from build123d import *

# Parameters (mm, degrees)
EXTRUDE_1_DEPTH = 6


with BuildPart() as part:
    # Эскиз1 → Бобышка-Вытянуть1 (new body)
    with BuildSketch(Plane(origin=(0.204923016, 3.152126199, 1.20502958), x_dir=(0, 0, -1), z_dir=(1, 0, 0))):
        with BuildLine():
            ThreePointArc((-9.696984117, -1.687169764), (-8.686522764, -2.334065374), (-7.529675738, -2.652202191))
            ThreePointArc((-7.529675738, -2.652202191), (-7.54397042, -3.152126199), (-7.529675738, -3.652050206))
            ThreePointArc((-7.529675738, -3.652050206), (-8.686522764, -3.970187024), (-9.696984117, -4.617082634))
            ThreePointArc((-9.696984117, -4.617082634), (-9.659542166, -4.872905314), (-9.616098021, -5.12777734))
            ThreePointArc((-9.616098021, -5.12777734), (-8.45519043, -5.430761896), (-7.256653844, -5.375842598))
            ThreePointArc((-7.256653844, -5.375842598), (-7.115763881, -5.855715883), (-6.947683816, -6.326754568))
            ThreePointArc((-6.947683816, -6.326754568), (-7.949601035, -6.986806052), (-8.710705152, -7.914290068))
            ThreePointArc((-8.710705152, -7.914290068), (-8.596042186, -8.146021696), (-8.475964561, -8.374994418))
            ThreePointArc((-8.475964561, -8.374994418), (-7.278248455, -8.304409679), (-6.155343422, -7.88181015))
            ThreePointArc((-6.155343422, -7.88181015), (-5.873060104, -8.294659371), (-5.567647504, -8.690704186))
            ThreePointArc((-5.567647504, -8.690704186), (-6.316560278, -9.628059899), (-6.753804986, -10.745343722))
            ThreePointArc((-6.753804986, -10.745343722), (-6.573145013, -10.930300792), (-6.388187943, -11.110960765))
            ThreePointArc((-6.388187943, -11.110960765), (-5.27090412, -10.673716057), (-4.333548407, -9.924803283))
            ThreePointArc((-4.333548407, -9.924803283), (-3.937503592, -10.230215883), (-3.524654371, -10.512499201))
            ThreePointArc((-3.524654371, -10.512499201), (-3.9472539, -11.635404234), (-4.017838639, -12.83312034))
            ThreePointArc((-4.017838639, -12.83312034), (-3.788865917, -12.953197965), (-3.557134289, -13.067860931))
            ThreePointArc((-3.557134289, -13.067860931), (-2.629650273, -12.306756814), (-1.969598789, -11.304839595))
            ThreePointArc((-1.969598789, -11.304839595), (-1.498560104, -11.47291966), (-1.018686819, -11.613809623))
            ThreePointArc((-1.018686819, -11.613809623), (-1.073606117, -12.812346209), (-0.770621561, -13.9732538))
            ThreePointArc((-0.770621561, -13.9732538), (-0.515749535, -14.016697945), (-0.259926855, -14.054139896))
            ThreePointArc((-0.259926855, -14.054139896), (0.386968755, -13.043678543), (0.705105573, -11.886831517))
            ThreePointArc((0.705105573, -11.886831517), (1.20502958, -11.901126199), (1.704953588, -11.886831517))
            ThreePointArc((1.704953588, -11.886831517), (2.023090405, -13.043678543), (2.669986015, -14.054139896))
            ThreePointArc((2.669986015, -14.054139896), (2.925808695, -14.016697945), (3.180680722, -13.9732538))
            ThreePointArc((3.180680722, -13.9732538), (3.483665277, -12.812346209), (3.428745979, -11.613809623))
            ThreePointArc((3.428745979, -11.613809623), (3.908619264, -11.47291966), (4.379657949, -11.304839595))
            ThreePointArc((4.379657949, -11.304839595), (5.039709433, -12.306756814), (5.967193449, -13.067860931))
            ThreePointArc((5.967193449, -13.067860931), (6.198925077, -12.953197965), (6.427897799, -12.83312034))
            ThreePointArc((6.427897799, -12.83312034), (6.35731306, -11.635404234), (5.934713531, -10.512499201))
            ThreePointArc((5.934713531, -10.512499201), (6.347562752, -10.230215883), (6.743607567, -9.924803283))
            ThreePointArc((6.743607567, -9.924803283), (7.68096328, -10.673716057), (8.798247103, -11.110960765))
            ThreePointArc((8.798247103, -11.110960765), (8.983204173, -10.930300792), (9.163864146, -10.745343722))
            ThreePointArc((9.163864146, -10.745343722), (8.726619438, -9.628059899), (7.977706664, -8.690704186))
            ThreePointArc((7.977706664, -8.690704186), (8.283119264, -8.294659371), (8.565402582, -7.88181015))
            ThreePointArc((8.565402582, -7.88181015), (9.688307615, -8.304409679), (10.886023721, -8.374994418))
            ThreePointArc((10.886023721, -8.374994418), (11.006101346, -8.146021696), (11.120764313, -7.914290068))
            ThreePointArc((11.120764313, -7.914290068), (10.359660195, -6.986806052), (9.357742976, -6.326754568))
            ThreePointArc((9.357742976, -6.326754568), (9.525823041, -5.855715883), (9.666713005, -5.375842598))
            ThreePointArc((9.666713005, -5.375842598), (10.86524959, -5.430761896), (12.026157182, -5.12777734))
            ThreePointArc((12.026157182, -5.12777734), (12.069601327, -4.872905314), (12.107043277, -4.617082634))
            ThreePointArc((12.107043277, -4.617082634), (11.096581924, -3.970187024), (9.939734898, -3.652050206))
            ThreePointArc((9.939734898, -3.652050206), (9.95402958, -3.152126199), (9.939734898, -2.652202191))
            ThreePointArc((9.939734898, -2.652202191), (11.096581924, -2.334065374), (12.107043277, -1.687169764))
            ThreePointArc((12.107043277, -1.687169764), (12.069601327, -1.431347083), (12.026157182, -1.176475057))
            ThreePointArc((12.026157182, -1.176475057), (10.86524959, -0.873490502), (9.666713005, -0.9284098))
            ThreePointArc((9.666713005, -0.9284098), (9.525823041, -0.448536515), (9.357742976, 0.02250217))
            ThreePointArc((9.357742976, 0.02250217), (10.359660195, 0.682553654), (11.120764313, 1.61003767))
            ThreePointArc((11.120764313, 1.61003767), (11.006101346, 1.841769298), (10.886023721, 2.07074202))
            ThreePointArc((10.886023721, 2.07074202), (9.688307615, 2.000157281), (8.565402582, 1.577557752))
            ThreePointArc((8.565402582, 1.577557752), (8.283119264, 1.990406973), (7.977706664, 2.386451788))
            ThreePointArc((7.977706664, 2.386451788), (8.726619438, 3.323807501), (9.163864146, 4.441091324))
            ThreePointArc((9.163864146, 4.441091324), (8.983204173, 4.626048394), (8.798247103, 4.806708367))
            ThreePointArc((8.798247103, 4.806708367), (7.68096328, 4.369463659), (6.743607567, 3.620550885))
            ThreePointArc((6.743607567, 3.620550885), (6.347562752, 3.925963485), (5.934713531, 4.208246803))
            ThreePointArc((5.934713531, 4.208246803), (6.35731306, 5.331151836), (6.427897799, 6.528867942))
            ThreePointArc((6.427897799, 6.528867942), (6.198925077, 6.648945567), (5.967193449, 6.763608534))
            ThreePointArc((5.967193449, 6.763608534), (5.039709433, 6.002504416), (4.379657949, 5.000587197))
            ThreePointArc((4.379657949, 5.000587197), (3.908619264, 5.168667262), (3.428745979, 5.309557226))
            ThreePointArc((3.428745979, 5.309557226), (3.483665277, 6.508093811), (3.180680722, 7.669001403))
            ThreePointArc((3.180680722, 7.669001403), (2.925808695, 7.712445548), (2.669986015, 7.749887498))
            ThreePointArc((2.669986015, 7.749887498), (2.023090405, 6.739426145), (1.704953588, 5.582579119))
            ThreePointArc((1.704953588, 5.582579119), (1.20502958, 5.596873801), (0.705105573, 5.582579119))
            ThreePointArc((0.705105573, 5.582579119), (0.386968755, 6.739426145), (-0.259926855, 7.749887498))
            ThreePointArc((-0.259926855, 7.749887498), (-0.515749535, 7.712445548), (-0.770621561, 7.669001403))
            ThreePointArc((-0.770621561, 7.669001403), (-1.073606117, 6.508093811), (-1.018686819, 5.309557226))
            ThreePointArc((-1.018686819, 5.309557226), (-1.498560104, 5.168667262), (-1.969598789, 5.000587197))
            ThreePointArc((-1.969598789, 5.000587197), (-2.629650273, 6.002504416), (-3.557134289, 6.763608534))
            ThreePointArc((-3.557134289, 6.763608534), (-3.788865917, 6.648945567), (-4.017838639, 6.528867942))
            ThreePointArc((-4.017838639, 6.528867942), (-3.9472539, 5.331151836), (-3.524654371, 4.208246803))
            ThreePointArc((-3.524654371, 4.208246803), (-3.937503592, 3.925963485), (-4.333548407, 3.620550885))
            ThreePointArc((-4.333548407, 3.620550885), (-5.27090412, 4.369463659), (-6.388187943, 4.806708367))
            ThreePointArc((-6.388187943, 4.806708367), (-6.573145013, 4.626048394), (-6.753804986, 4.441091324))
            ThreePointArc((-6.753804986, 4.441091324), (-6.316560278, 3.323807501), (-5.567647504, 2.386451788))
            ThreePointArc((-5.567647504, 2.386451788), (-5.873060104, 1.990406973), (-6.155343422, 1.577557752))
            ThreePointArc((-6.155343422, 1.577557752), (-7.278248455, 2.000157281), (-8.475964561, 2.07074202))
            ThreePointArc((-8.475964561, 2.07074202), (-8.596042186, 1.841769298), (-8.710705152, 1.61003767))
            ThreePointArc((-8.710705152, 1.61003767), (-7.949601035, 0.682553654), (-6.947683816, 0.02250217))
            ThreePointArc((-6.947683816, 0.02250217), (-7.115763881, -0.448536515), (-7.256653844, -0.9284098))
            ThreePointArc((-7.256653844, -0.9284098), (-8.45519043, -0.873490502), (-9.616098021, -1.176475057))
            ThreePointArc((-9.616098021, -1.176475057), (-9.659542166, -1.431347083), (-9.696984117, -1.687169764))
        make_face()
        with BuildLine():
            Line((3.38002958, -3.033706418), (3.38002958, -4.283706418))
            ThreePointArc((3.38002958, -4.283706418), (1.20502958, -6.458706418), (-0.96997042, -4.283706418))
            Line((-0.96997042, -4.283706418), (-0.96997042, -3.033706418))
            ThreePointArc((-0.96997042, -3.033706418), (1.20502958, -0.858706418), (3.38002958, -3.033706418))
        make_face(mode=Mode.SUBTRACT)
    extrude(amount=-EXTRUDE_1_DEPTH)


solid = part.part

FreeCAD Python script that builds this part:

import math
import FreeCAD as App
import Part
import Sketcher
Q = App.Units.Quantity

doc = App.newDocument("Part")
params = doc.addObject("Spreadsheet::Sheet", "Params")
for row, (alias, value) in enumerate([
    ("sketch1_radius", "4 mm"),
    ("sketch1_radius2", "11.000002 mm"),
    ("sketch1_width", "1.25 mm"),
    ("pad1_length", "6 mm"),
], start=1):
    params.set(f"A{row}", alias)
    params.set(f"B{row}", "=" + value)
    params.setAlias(f"B{row}", alias)

body = doc.addObject("PartDesign::Body", "Body")

# Sketch on YZ plane
sketch1 = body.newObject("Sketcher::SketchObject", "Sketch")
sketch1.AttachmentSupport = (doc.getObject("YZ_Plane"), [""])
sketch1.MapMode = "FlatFace"
sketch1.AttachmentOffset = App.Placement(App.Vector(0, 0, 0.204923), App.Rotation())
sketch1.addGeometry([
    Part.ArcOfCircle(Part.Circle(App.Vector(4.5, 8.3, 0), App.Vector(0, 0, 1), 4), math.radians(139), math.radians(173)),  # 0
    Part.ArcOfCircle(Part.Circle(App.Vector(0, 0, 0), App.Vector(0, 0, 1), 8.7), math.radians(86.72), math.radians(93.28)),  # 1
    Part.ArcOfCircle(Part.Circle(App.Vector(-4.5, 8.3, 0), App.Vector(0, 0, 1), 4), math.radians(7), math.radians(41)),  # 2
    Part.ArcOfCircle(Part.Circle(App.Vector(0, 0, 0), App.Vector(0, 0, 1), 11), math.radians(97.65), math.radians(100.35)),  # 3
    Part.ArcOfCircle(Part.Circle(App.Vector(1.7, 9.2, 0), App.Vector(0, 0, 1), 4), math.radians(157), math.radians(191)),  # 4
    Part.ArcOfCircle(Part.Circle(App.Vector(0, 0, 0), App.Vector(0, 0, 1), 8.7), math.radians(104.72), math.radians(111.28)),  # 5
    Part.ArcOfCircle(Part.Circle(App.Vector(-6.8, 6.5, 0), App.Vector(0, 0, 1), 4), math.radians(25), math.radians(59)),  # 6
    Part.ArcOfCircle(Part.Circle(App.Vector(0, 0, 0), App.Vector(0, 0, 1), 11), math.radians(115.65), math.radians(118.35)),  # 7
    Part.ArcOfCircle(Part.Circle(App.Vector(-1.2, 9.3, 0), App.Vector(0, 0, 1), 4), math.radians(175), math.radians(209)),  # 8
    Part.ArcOfCircle(Part.Circle(App.Vector(0, 0, 0), App.Vector(0, 0, 1), 8.7), math.radians(122.72), math.radians(129.28)),  # 9
    Part.ArcOfCircle(Part.Circle(App.Vector(-8.5, 4.1, 0), App.Vector(0, 0, 1), 4), math.radians(43), math.radians(77)),  # 10
    Part.ArcOfCircle(Part.Circle(App.Vector(0, 0, 0), App.Vector(0, 0, 1), 11), math.radians(133.65), math.radians(136.35)),  # 11
    Part.ArcOfCircle(Part.Circle(App.Vector(-4.1, 8.5, 0), App.Vector(0, 0, 1), 4), math.radians(-167), math.radians(-133)),  # 12
    Part.ArcOfCircle(Part.Circle(App.Vector(0, 0, 0), App.Vector(0, 0, 1), 8.7), math.radians(140.72), math.radians(147.28)),  # 13
    Part.ArcOfCircle(Part.Circle(App.Vector(-9.3, 1.2, 0), App.Vector(0, 0, 1), 4), math.radians(61), math.radians(95)),  # 14
    Part.ArcOfCircle(Part.Circle(App.Vector(0, 0, 0), App.Vector(0, 0, 1), 11), math.radians(151.65), math.radians(154.35)),  # 15
    Part.ArcOfCircle(Part.Circle(App.Vector(-6.5, 6.8, 0), App.Vector(0, 0, 1), 4), math.radians(-149), math.radians(-115)),  # 16
    Part.ArcOfCircle(Part.Circle(App.Vector(0, 0, 0), App.Vector(0, 0, 1), 8.7), math.radians(158.72), math.radians(165.28)),  # 17
    Part.ArcOfCircle(Part.Circle(App.Vector(-9.2, -1.7, 0), App.Vector(0, 0, 1), 4), math.radians(79), math.radians(113)),  # 18
    Part.ArcOfCircle(Part.Circle(App.Vector(0, 0, 0), App.Vector(0, 0, 1), 11), math.radians(169.65), math.radians(172.35)),  # 19
    Part.ArcOfCircle(Part.Circle(App.Vector(-8.3, 4.5, 0), App.Vector(0, 0, 1), 4), math.radians(-131), math.radians(-97)),  # 20
    Part.ArcOfCircle(Part.Circle(App.Vector(0, 0, 0), App.Vector(0, 0, 1), 8.7), math.radians(176.72), math.radians(183.28)),  # 21
    Part.ArcOfCircle(Part.Circle(App.Vector(-8.3, -4.5, 0), App.Vector(0, 0, 1), 4), math.radians(97), math.radians(131)),  # 22
    Part.ArcOfCircle(Part.Circle(App.Vector(0, 0, 0), App.Vector(0, 0, 1), 11), math.radians(-172.35), math.radians(-169.65)),  # 23
    Part.ArcOfCircle(Part.Circle(App.Vector(-9.2, 1.7, 0), App.Vector(0, 0, 1), 4), math.radians(-113), math.radians(-79)),  # 24
    Part.ArcOfCircle(Part.Circle(App.Vector(0, 0, 0), App.Vector(0, 0, 1), 8.7), math.radians(-165.28), math.radians(-158.72)),  # 25
    Part.ArcOfCircle(Part.Circle(App.Vector(-6.5, -6.8, 0), App.Vector(0, 0, 1), 4), math.radians(115), math.radians(149)),  # 26
    Part.ArcOfCircle(Part.Circle(App.Vector(0, 0, 0), App.Vector(0, 0, 1), 11), math.radians(-154.35), math.radians(-151.65)),  # 27
    Part.ArcOfCircle(Part.Circle(App.Vector(-9.3, -1.2, 0), App.Vector(0, 0, 1), 4), math.radians(-95), math.radians(-61)),  # 28
    Part.ArcOfCircle(Part.Circle(App.Vector(0, 0, 0), App.Vector(0, 0, 1), 8.7), math.radians(-147.28), math.radians(-140.72)),  # 29
    Part.ArcOfCircle(Part.Circle(App.Vector(-4.1, -8.5, 0), App.Vector(0, 0, 1), 4), math.radians(133), math.radians(167)),  # 30
    Part.ArcOfCircle(Part.Circle(App.Vector(0, 0, 0), App.Vector(0, 0, 1), 11), math.radians(-136.35), math.radians(-133.65)),  # 31
    Part.ArcOfCircle(Part.Circle(App.Vector(-8.5, -4.1, 0), App.Vector(0, 0, 1), 4), math.radians(-77), math.radians(-43)),  # 32
    Part.ArcOfCircle(Part.Circle(App.Vector(0, 0, 0), App.Vector(0, 0, 1), 8.7), math.radians(-129.28), math.radians(-122.72)),  # 33
    Part.ArcOfCircle(Part.Circle(App.Vector(-1.2, -9.3, 0), App.Vector(0, 0, 1), 4), math.radians(151), math.radians(185)),  # 34
    Part.ArcOfCircle(Part.Circle(App.Vector(0, 0, 0), App.Vector(0, 0, 1), 11), math.radians(-118.35), math.radians(-115.65)),  # 35
    Part.ArcOfCircle(Part.Circle(App.Vector(-6.8, -6.5, 0), App.Vector(0, 0, 1), 4), math.radians(-59), math.radians(-25)),  # 36
    Part.ArcOfCircle(Part.Circle(App.Vector(0, 0, 0), App.Vector(0, 0, 1), 8.7), math.radians(-111.28), math.radians(-104.72)),  # 37
    Part.ArcOfCircle(Part.Circle(App.Vector(1.7, -9.2, 0), App.Vector(0, 0, 1), 4), math.radians(169), math.radians(203)),  # 38
    Part.ArcOfCircle(Part.Circle(App.Vector(0, 0, 0), App.Vector(0, 0, 1), 11), math.radians(-100.35), math.radians(-97.65)),  # 39
    Part.ArcOfCircle(Part.Circle(App.Vector(-4.5, -8.3, 0), App.Vector(0, 0, 1), 4), math.radians(-41), math.radians(-7)),  # 40
    Part.ArcOfCircle(Part.Circle(App.Vector(0, 0, 0), App.Vector(0, 0, 1), 8.7), math.radians(-93.28), math.radians(-86.72)),  # 41
    Part.ArcOfCircle(Part.Circle(App.Vector(4.5, -8.3, 0), App.Vector(0, 0, 1), 4), math.radians(-173), math.radians(-139)),  # 42
    Part.ArcOfCircle(Part.Circle(App.Vector(0, 0, 0), App.Vector(0, 0, 1), 11), math.radians(-82.35), math.radians(-79.65)),  # 43
    Part.ArcOfCircle(Part.Circle(App.Vector(-1.7, -9.2, 0), App.Vector(0, 0, 1), 4), math.radians(-23), math.radians(11)),  # 44
    Part.ArcOfCircle(Part.Circle(App.Vector(0, 0, 0), App.Vector(0, 0, 1), 8.7), math.radians(-75.28), math.radians(-68.72)),  # 45
    Part.ArcOfCircle(Part.Circle(App.Vector(6.8, -6.5, 0), App.Vector(0, 0, 1), 4), math.radians(-155), math.radians(-121)),  # 46
    Part.ArcOfCircle(Part.Circle(App.Vector(0, 0, 0), App.Vector(0, 0, 1), 11), math.radians(-64.35), math.radians(-61.65)),  # 47
    Part.ArcOfCircle(Part.Circle(App.Vector(1.2, -9.3, 0), App.Vector(0, 0, 1), 4), math.radians(-5), math.radians(29)),  # 48
    Part.ArcOfCircle(Part.Circle(App.Vector(0, 0, 0), App.Vector(0, 0, 1), 8.7), math.radians(-57.28), math.radians(-50.72)),  # 49
    Part.ArcOfCircle(Part.Circle(App.Vector(8.5, -4.1, 0), App.Vector(0, 0, 1), 4), math.radians(-137), math.radians(-103)),  # 50
    Part.ArcOfCircle(Part.Circle(App.Vector(0, 0, 0), App.Vector(0, 0, 1), 11), math.radians(-46.35), math.radians(-43.65)),  # 51
    Part.ArcOfCircle(Part.Circle(App.Vector(4.1, -8.5, 0), App.Vector(0, 0, 1), 4), math.radians(13), math.radians(47)),  # 52
    Part.ArcOfCircle(Part.Circle(App.Vector(0, 0, 0), App.Vector(0, 0, 1), 8.7), math.radians(-39.28), math.radians(-32.72)),  # 53
    Part.ArcOfCircle(Part.Circle(App.Vector(9.3, -1.2, 0), App.Vector(0, 0, 1), 4), math.radians(-119), math.radians(-85)),  # 54
    Part.ArcOfCircle(Part.Circle(App.Vector(0, 0, 0), App.Vector(0, 0, 1), 11), math.radians(-28.35), math.radians(-25.65)),  # 55
    Part.ArcOfCircle(Part.Circle(App.Vector(6.5, -6.8, 0), App.Vector(0, 0, 1), 4), math.radians(31), math.radians(65)),  # 56
    Part.ArcOfCircle(Part.Circle(App.Vector(0, 0, 0), App.Vector(0, 0, 1), 8.7), math.radians(-21.28), math.radians(-14.72)),  # 57
    Part.ArcOfCircle(Part.Circle(App.Vector(9.2, 1.7, 0), App.Vector(0, 0, 1), 4), math.radians(-101), math.radians(-67)),  # 58
    Part.ArcOfCircle(Part.Circle(App.Vector(0, 0, 0), App.Vector(0, 0, 1), 11), math.radians(-10.35), math.radians(-7.65)),  # 59
    Part.ArcOfCircle(Part.Circle(App.Vector(8.3, -4.5, 0), App.Vector(0, 0, 1), 4), math.radians(49), math.radians(83)),  # 60
    Part.ArcOfCircle(Part.Circle(App.Vector(0, 0, 0), App.Vector(0, 0, 1), 8.7), math.radians(-3.28), math.radians(3.28)),  # 61
    Part.ArcOfCircle(Part.Circle(App.Vector(8.3, 4.5, 0), App.Vector(0, 0, 1), 4), math.radians(-83), math.radians(-49)),  # 62
    Part.ArcOfCircle(Part.Circle(App.Vector(0, 0, 0), App.Vector(0, 0, 1), 11), math.radians(7.65), math.radians(10.35)),  # 63
    Part.ArcOfCircle(Part.Circle(App.Vector(9.2, -1.7, 0), App.Vector(0, 0, 1), 4), math.radians(67), math.radians(101)),  # 64
    Part.ArcOfCircle(Part.Circle(App.Vector(0, 0, 0), App.Vector(0, 0, 1), 8.7), math.radians(14.72), math.radians(21.28)),  # 65
    Part.ArcOfCircle(Part.Circle(App.Vector(6.5, 6.8, 0), App.Vector(0, 0, 1), 4), math.radians(-65), math.radians(-31)),  # 66
    Part.ArcOfCircle(Part.Circle(App.Vector(0, 0, 0), App.Vector(0, 0, 1), 11), math.radians(25.65), math.radians(28.35)),  # 67
    Part.ArcOfCircle(Part.Circle(App.Vector(9.3, 1.2, 0), App.Vector(0, 0, 1), 4), math.radians(85), math.radians(119)),  # 68
    Part.ArcOfCircle(Part.Circle(App.Vector(0, 0, 0), App.Vector(0, 0, 1), 8.7), math.radians(32.72), math.radians(39.28)),  # 69
    Part.ArcOfCircle(Part.Circle(App.Vector(4.1, 8.5, 0), App.Vector(0, 0, 1), 4), math.radians(-47), math.radians(-13)),  # 70
    Part.ArcOfCircle(Part.Circle(App.Vector(0, 0, 0), App.Vector(0, 0, 1), 11), math.radians(43.65), math.radians(46.35)),  # 71
    Part.ArcOfCircle(Part.Circle(App.Vector(8.5, 4.1, 0), App.Vector(0, 0, 1), 4), math.radians(103), math.radians(137)),  # 72
    Part.ArcOfCircle(Part.Circle(App.Vector(0, 0, 0), App.Vector(0, 0, 1), 8.7), math.radians(50.72), math.radians(57.28)),  # 73
    Part.ArcOfCircle(Part.Circle(App.Vector(1.2, 9.3, 0), App.Vector(0, 0, 1), 4), math.radians(-29), math.radians(5)),  # 74
    Part.ArcOfCircle(Part.Circle(App.Vector(0, 0, 0), App.Vector(0, 0, 1), 11), math.radians(61.65), math.radians(64.35)),  # 75
    Part.ArcOfCircle(Part.Circle(App.Vector(6.8, 6.5, 0), App.Vector(0, 0, 1), 4), math.radians(121), math.radians(155)),  # 76
    Part.ArcOfCircle(Part.Circle(App.Vector(0, 0, 0), App.Vector(0, 0, 1), 8.7), math.radians(68.72), math.radians(75.28)),  # 77
    Part.ArcOfCircle(Part.Circle(App.Vector(-1.7, 9.2, 0), App.Vector(0, 0, 1), 4), math.radians(-11), math.radians(23)),  # 78
    Part.ArcOfCircle(Part.Circle(App.Vector(0, 0, 0), App.Vector(0, 0, 1), 11), math.radians(79.65), math.radians(82.35)),  # 79
    Part.ArcOfCircle(Part.Circle(App.Vector(0.1, 0, 0), App.Vector(0, 0, 1), 2.2), math.radians(-90), math.radians(90)),  # 80
    Part.LineSegment(App.Vector(0.1, -2.2, 0), App.Vector(-1.1, -2.2, 0)),  # 81
    Part.ArcOfCircle(Part.Circle(App.Vector(-1.1, 0, 0), App.Vector(0, 0, 1), 2.2), math.radians(90), math.radians(270)),  # 82
    Part.LineSegment(App.Vector(-1.1, 2.2, 0), App.Vector(0.1, 2.2, 0)),  # 83
], False)
sketch1.addConstraint([
    Sketcher.Constraint("Coincident", 0, 2, 1, 1),
    Sketcher.Constraint("Coincident", 1, 2, 2, 1),
    Sketcher.Constraint("Coincident", 2, 2, 3, 1),
    Sketcher.Constraint("Coincident", 3, 2, 4, 1),
    Sketcher.Constraint("Coincident", 4, 2, 5, 1),
    Sketcher.Constraint("Coincident", 5, 2, 6, 1),
    Sketcher.Constraint("Coincident", 6, 2, 7, 1),
    Sketcher.Constraint("Coincident", 7, 2, 8, 1),
    Sketcher.Constraint("Coincident", 8, 2, 9, 1),
    Sketcher.Constraint("Coincident", 9, 2, 10, 1),
    Sketcher.Constraint("Coincident", 10, 2, 11, 1),
    Sketcher.Constraint("Coincident", 11, 2, 12, 1),
    Sketcher.Constraint("Coincident", 12, 2, 13, 1),
    Sketcher.Constraint("Coincident", 13, 2, 14, 1),
    Sketcher.Constraint("Coincident", 14, 2, 15, 1),
    Sketcher.Constraint("Coincident", 15, 2, 16, 1),
    Sketcher.Constraint("Coincident", 16, 2, 17, 1),
    Sketcher.Constraint("Coincident", 17, 2, 18, 1),
    Sketcher.Constraint("Coincident", 18, 2, 19, 1),
    Sketcher.Constraint("Coincident", 19, 2, 20, 1),
    Sketcher.Constraint("Coincident", 20, 2, 21, 1),
    Sketcher.Constraint("Coincident", 21, 2, 22, 1),
    Sketcher.Constraint("Coincident", 22, 2, 23, 1),
    Sketcher.Constraint("Coincident", 23, 2, 24, 1),
    Sketcher.Constraint("Coincident", 24, 2, 25, 1),
    Sketcher.Constraint("Coincident", 25, 2, 26, 1),
    Sketcher.Constraint("Coincident", 26, 2, 27, 1),
    Sketcher.Constraint("Coincident", 27, 2, 28, 1),
    Sketcher.Constraint("Coincident", 28, 2, 29, 1),
    Sketcher.Constraint("Coincident", 29, 2, 30, 1),
    Sketcher.Constraint("Coincident", 30, 2, 31, 1),
    Sketcher.Constraint("Coincident", 31, 2, 32, 1),
    Sketcher.Constraint("Coincident", 32, 2, 33, 1),
    Sketcher.Constraint("Coincident", 33, 2, 34, 1),
    Sketcher.Constraint("Coincident", 34, 2, 35, 1),
    Sketcher.Constraint("Coincident", 35, 2, 36, 1),
    Sketcher.Constraint("Coincident", 36, 2, 37, 1),
    Sketcher.Constraint("Coincident", 37, 2, 38, 1),
    Sketcher.Constraint("Coincident", 38, 2, 39, 1),
    Sketcher.Constraint("Coincident", 39, 2, 40, 1),
    Sketcher.Constraint("Coincident", 40, 2, 41, 1),
    Sketcher.Constraint("Coincident", 41, 2, 42, 1),
    Sketcher.Constraint("Coincident", 42, 2, 43, 1),
    Sketcher.Constraint("Coincident", 43, 2, 44, 1),
    Sketcher.Constraint("Coincident", 44, 2, 45, 1),
    Sketcher.Constraint("Coincident", 45, 2, 46, 1),
    Sketcher.Constraint("Coincident", 46, 2, 47, 1),
    Sketcher.Constraint("Coincident", 47, 2, 48, 1),
    Sketcher.Constraint("Coincident", 48, 2, 49, 1),
    Sketcher.Constraint("Coincident", 49, 2, 50, 1),
    Sketcher.Constraint("Coincident", 50, 2, 51, 1),
    Sketcher.Constraint("Coincident", 51, 2, 52, 1),
    Sketcher.Constraint("Coincident", 52, 2, 53, 1),
    Sketcher.Constraint("Coincident", 53, 2, 54, 1),
    Sketcher.Constraint("Coincident", 54, 2, 55, 1),
    Sketcher.Constraint("Coincident", 55, 2, 56, 1),
    Sketcher.Constraint("Coincident", 56, 2, 57, 1),
    Sketcher.Constraint("Coincident", 57, 2, 58, 1),
    Sketcher.Constraint("Coincident", 58, 2, 59, 1),
    Sketcher.Constraint("Coincident", 59, 2, 60, 1),
    Sketcher.Constraint("Coincident", 60, 2, 61, 1),
    Sketcher.Constraint("Coincident", 61, 2, 62, 1),
    Sketcher.Constraint("Coincident", 62, 2, 63, 1),
    Sketcher.Constraint("Coincident", 63, 2, 64, 1),
    Sketcher.Constraint("Coincident", 64, 2, 65, 1),
    Sketcher.Constraint("Coincident", 65, 2, 66, 1),
    Sketcher.Constraint("Coincident", 66, 2, 67, 1),
    Sketcher.Constraint("Coincident", 67, 2, 68, 1),
    Sketcher.Constraint("Coincident", 68, 2, 69, 1),
    Sketcher.Constraint("Coincident", 69, 2, 70, 1),
    Sketcher.Constraint("Coincident", 70, 2, 71, 1),
    Sketcher.Constraint("Coincident", 71, 2, 72, 1),
    Sketcher.Constraint("Coincident", 72, 2, 73, 1),
    Sketcher.Constraint("Coincident", 73, 2, 74, 1),
    Sketcher.Constraint("Coincident", 74, 2, 75, 1),
    Sketcher.Constraint("Coincident", 75, 2, 76, 1),
    Sketcher.Constraint("Coincident", 76, 2, 77, 1),
    Sketcher.Constraint("Coincident", 77, 2, 78, 1),
    Sketcher.Constraint("Coincident", 78, 2, 79, 1),
    Sketcher.Constraint("Coincident", 79, 2, 0, 1),
    Sketcher.Constraint("Tangent", 80, 1, 81, 1),
    Sketcher.Constraint("Tangent", 81, 2, 82, 2),
    Sketcher.Constraint("Tangent", 82, 1, 83, 1),
    Sketcher.Constraint("Tangent", 83, 2, 80, 2),
    Sketcher.Constraint("Horizontal", 81),
    Sketcher.Constraint("Horizontal", 83),
    Sketcher.Constraint("Coincident", 1, 3, -1, 1),
    Sketcher.Constraint("Coincident", 3, 3, -1, 1),
    Sketcher.Constraint("Coincident", 5, 3, -1, 1),
    Sketcher.Constraint("Coincident", 7, 3, -1, 1),
    Sketcher.Constraint("Coincident", 9, 3, -1, 1),
    Sketcher.Constraint("Coincident", 11, 3, -1, 1),
    Sketcher.Constraint("Coincident", 13, 3, -1, 1),
    Sketcher.Constraint("Coincident", 15, 3, -1, 1),
    Sketcher.Constraint("Coincident", 17, 3, -1, 1),
    Sketcher.Constraint("Coincident", 19, 3, -1, 1),
    Sketcher.Constraint("Coincident", 21, 3, -1, 1),
    Sketcher.Constraint("Coincident", 23, 3, -1, 1),
    Sketcher.Constraint("Coincident", 25, 3, -1, 1),
    Sketcher.Constraint("Coincident", 27, 3, -1, 1),
    Sketcher.Constraint("Coincident", 29, 3, -1, 1),
    Sketcher.Constraint("Coincident", 31, 3, -1, 1),
    Sketcher.Constraint("Coincident", 33, 3, -1, 1),
    Sketcher.Constraint("Coincident", 35, 3, -1, 1),
    Sketcher.Constraint("Coincident", 37, 3, -1, 1),
    Sketcher.Constraint("Coincident", 39, 3, -1, 1),
    Sketcher.Constraint("Coincident", 41, 3, -1, 1),
    Sketcher.Constraint("Coincident", 43, 3, -1, 1),
    Sketcher.Constraint("Coincident", 45, 3, -1, 1),
    Sketcher.Constraint("Coincident", 47, 3, -1, 1),
    Sketcher.Constraint("Coincident", 49, 3, -1, 1),
    Sketcher.Constraint("Coincident", 51, 3, -1, 1),
    Sketcher.Constraint("Coincident", 53, 3, -1, 1),
    Sketcher.Constraint("Coincident", 55, 3, -1, 1),
    Sketcher.Constraint("Coincident", 57, 3, -1, 1),
    Sketcher.Constraint("Coincident", 59, 3, -1, 1),
    Sketcher.Constraint("Coincident", 61, 3, -1, 1),
    Sketcher.Constraint("Coincident", 63, 3, -1, 1),
    Sketcher.Constraint("Coincident", 65, 3, -1, 1),
    Sketcher.Constraint("Coincident", 67, 3, -1, 1),
    Sketcher.Constraint("Coincident", 69, 3, -1, 1),
    Sketcher.Constraint("Coincident", 71, 3, -1, 1),
    Sketcher.Constraint("Coincident", 73, 3, -1, 1),
    Sketcher.Constraint("Coincident", 75, 3, -1, 1),
    Sketcher.Constraint("Coincident", 77, 3, -1, 1),
    Sketcher.Constraint("Coincident", 79, 3, -1, 1),
    Sketcher.Constraint("Equal", 0, 2),
    Sketcher.Constraint("Equal", 2, 4),
    Sketcher.Constraint("Equal", 1, 5),
    Sketcher.Constraint("Equal", 4, 6),
    Sketcher.Constraint("Equal", 6, 8),
    Sketcher.Constraint("Equal", 5, 9),
    Sketcher.Constraint("Equal", 8, 10),
    Sketcher.Constraint("Equal", 7, 11),
    Sketcher.Constraint("Equal", 10, 12),
    Sketcher.Constraint("Equal", 9, 13),
    Sketcher.Constraint("Equal", 12, 14),
    Sketcher.Constraint("Equal", 11, 15),
    Sketcher.Constraint("Equal", 14, 16),
    Sketcher.Constraint("Equal", 13, 17),
    Sketcher.Constraint("Equal", 16, 18),
    Sketcher.Constraint("Equal", 11, 19),
    Sketcher.Constraint("Equal", 18, 20),
    Sketcher.Constraint("Equal", 17, 21),
    Sketcher.Constraint("Equal", 20, 22),
    Sketcher.Constraint("Equal", 19, 23),
    Sketcher.Constraint("Equal", 22, 24),
    Sketcher.Constraint("Equal", 21, 25),
    Sketcher.Constraint("Equal", 24, 26),
    Sketcher.Constraint("Equal", 15, 27),
    Sketcher.Constraint("Equal", 26, 28),
    Sketcher.Constraint("Equal", 25, 29),
    Sketcher.Constraint("Equal", 28, 30),
    Sketcher.Constraint("Equal", 27, 31),
    Sketcher.Constraint("Equal", 30, 32),
    Sketcher.Constraint("Equal", 29, 33),
    Sketcher.Constraint("Equal", 32, 34),
    Sketcher.Constraint("Equal", 31, 35),
    Sketcher.Constraint("Equal", 34, 36),
    Sketcher.Constraint("Equal", 33, 37),
    Sketcher.Constraint("Equal", 36, 38),
    Sketcher.Constraint("Equal", 35, 39),
    Sketcher.Constraint("Equal", 38, 40),
    Sketcher.Constraint("Equal", 37, 41),
    Sketcher.Constraint("Equal", 40, 42),
    Sketcher.Constraint("Equal", 39, 43),
    Sketcher.Constraint("Equal", 42, 44),
    Sketcher.Constraint("Equal", 41, 45),
    Sketcher.Constraint("Equal", 44, 46),
    Sketcher.Constraint("Equal", 43, 47),
    Sketcher.Constraint("Equal", 46, 48),
    Sketcher.Constraint("Equal", 45, 49),
    Sketcher.Constraint("Equal", 48, 50),
    Sketcher.Constraint("Equal", 47, 51),
    Sketcher.Constraint("Equal", 50, 52),
    Sketcher.Constraint("Equal", 49, 53),
    Sketcher.Constraint("Equal", 52, 54),
    Sketcher.Constraint("Equal", 51, 55),
    Sketcher.Constraint("Equal", 54, 56),
    Sketcher.Constraint("Equal", 53, 57),
    Sketcher.Constraint("Equal", 56, 58),
    Sketcher.Constraint("Equal", 55, 59),
    Sketcher.Constraint("Equal", 58, 60),
    Sketcher.Constraint("Equal", 57, 61),
    Sketcher.Constraint("Equal", 60, 62),
    Sketcher.Constraint("Equal", 59, 63),
    Sketcher.Constraint("Equal", 62, 64),
    Sketcher.Constraint("Equal", 61, 65),
    Sketcher.Constraint("Equal", 64, 66),
    Sketcher.Constraint("Equal", 63, 67),
    Sketcher.Constraint("Equal", 66, 68),
    Sketcher.Constraint("Equal", 65, 69),
    Sketcher.Constraint("Equal", 68, 70),
    Sketcher.Constraint("Equal", 67, 71),
    Sketcher.Constraint("Equal", 70, 72),
    Sketcher.Constraint("Equal", 69, 73),
    Sketcher.Constraint("Equal", 72, 74),
    Sketcher.Constraint("Equal", 71, 75),
    Sketcher.Constraint("Equal", 74, 76),
    Sketcher.Constraint("Equal", 73, 77),
    Sketcher.Constraint("Equal", 76, 78),
    Sketcher.Constraint("Equal", 71, 79),
    Sketcher.Constraint("Symmetric", 0, 3, 40, 3, -1, 1),
    Sketcher.Constraint("Symmetric", 2, 3, 42, 3, -1, 1),
    Sketcher.Constraint("Symmetric", 4, 3, 44, 3, -1, 1),
    Sketcher.Constraint("Symmetric", 6, 3, 46, 3, -1, 1),
    Sketcher.Constraint("Symmetric", 8, 3, 48, 3, -1, 1),
    Sketcher.Constraint("Symmetric", 10, 3, 50, 3, -1, 1),
    Sketcher.Constraint("Symmetric", 12, 3, 52, 3, -1, 1),
    Sketcher.Constraint("Symmetric", 14, 3, 54, 3, -1, 1),
    Sketcher.Constraint("Symmetric", 16, 3, 56, 3, -1, 1),
    Sketcher.Constraint("Symmetric", 18, 3, 58, 3, -1, 1),
    Sketcher.Constraint("Symmetric", 20, 3, 60, 3, -1, 1),
    Sketcher.Constraint("Symmetric", 22, 3, 62, 3, -1, 1),
    Sketcher.Constraint("Symmetric", 24, 3, 64, 3, -1, 1),
    Sketcher.Constraint("Symmetric", 26, 3, 66, 3, -1, 1),
    Sketcher.Constraint("Symmetric", 28, 3, 68, 3, -1, 1),
    Sketcher.Constraint("Symmetric", 30, 3, 70, 3, -1, 1),
    Sketcher.Constraint("Symmetric", 32, 3, 72, 3, -1, 1),
    Sketcher.Constraint("Symmetric", 34, 3, 74, 3, -1, 1),
    Sketcher.Constraint("Symmetric", 36, 3, 76, 3, -1, 1),
    Sketcher.Constraint("Symmetric", 38, 3, 78, 3, -1, 1),
    Sketcher.Constraint("Symmetric", 0, 3, 2, 3, -2),
    Sketcher.Constraint("Symmetric", 38, 3, 44, 3, -2),
    Sketcher.Constraint("Symmetric", 36, 3, 46, 3, -2),
    Sketcher.Constraint("Symmetric", 34, 3, 48, 3, -2),
    Sketcher.Constraint("Symmetric", 32, 3, 50, 3, -2),
    Sketcher.Constraint("Symmetric", 30, 3, 52, 3, -2),
    Sketcher.Constraint("Symmetric", 28, 3, 54, 3, -2),
    Sketcher.Constraint("Symmetric", 26, 3, 56, 3, -2),
    Sketcher.Constraint("Symmetric", 24, 3, 58, 3, -2),
    Sketcher.Constraint("Symmetric", 22, 3, 60, 3, -2),
    Sketcher.Constraint("PointOnObject", 80, 3, -1),
    Sketcher.Constraint("Horizontal", 3, 2, 78, 2),
    Sketcher.Constraint("Radius", 0, Q("4 mm")),
    Sketcher.Constraint("Radius", 3, Q("11.000002 mm")),
    Sketcher.Constraint("Radius", 1, Q("8.749 mm")),
    Sketcher.Constraint("Radius", 80, Q("2.175 mm")),
    Sketcher.Constraint("DistanceX", 81, 2, 81, 1, Q("1.25 mm")),
    Sketcher.Constraint("DistanceX", -1, 1, 0, 3, Q("4.47219 mm")),
    Sketcher.Constraint("DistanceX", -1, 1, 4, 3, Q("1.699438 mm")),
    Sketcher.Constraint("DistanceX", 6, 3, -1, 1, Q("6.807172 mm")),
    Sketcher.Constraint("DistanceY", -1, 1, 6, 3, Q("6.478011 mm")),
    Sketcher.Constraint("DistanceX", 10, 3, -1, 1, Q("8.475821 mm")),
    Sketcher.Constraint("DistanceY", -1, 1, 12, 3, Q("8.475821 mm")),
    Sketcher.Constraint("DistanceX", 16, 3, -1, 1, Q("6.478011 mm")),
    Sketcher.Constraint("DistanceY", -1, 1, 16, 3, Q("6.807172 mm")),
    Sketcher.Constraint("DistanceY", 18, 3, -1, 1, Q("1.699438 mm")),
    Sketcher.Constraint("DistanceY", -1, 1, 20, 3, Q("4.47219 mm")),
    Sketcher.Constraint("DistanceX", -1, 1, 80, 3, Q("0.11842 mm")),
    Sketcher.Constraint("DistanceX", 3, 2, -1, 1, Q("1.975651 mm")),
    Sketcher.Constraint("DistanceX", 7, 2, -1, 1, Q("5.222868 mm")),
    Sketcher.Constraint("DistanceY", -1, 1, 14, 2, Q("5.222868 mm")),
    Sketcher.Constraint("DistanceY", -1, 1, 18, 2, Q("1.975651 mm")),
    Sketcher.Constraint("DistanceY", -1, 1, 0, 3, Q("8.264487 mm")),
    Sketcher.Constraint("DistanceX", 8, 3, -1, 1, Q("1.239666 mm")),
    Sketcher.Constraint("DistanceY", -1, 1, 10, 3, Q("4.057423 mm")),
    Sketcher.Constraint("DistanceX", 12, 3, -1, 1, Q("4.057423 mm")),
    Sketcher.Constraint("DistanceX", 14, 3, -1, 1, Q("9.314797 mm")),
    Sketcher.Constraint("DistanceX", 20, 3, -1, 1, Q("8.264487 mm")),
])
sketch1.setExpression("Constraints[234]", "Params.sketch1_radius")
sketch1.setExpression("Constraints[235]", "Params.sketch1_radius2")
sketch1.setExpression("Constraints[238]", "Params.sketch1_width")
pad1 = body.newObject("PartDesign::Pad", "Pad")
pad1.Profile = sketch1
pad1.setExpression("Length", "Params.pad1_length")
pad1.Reversed = True

doc.recompute()
